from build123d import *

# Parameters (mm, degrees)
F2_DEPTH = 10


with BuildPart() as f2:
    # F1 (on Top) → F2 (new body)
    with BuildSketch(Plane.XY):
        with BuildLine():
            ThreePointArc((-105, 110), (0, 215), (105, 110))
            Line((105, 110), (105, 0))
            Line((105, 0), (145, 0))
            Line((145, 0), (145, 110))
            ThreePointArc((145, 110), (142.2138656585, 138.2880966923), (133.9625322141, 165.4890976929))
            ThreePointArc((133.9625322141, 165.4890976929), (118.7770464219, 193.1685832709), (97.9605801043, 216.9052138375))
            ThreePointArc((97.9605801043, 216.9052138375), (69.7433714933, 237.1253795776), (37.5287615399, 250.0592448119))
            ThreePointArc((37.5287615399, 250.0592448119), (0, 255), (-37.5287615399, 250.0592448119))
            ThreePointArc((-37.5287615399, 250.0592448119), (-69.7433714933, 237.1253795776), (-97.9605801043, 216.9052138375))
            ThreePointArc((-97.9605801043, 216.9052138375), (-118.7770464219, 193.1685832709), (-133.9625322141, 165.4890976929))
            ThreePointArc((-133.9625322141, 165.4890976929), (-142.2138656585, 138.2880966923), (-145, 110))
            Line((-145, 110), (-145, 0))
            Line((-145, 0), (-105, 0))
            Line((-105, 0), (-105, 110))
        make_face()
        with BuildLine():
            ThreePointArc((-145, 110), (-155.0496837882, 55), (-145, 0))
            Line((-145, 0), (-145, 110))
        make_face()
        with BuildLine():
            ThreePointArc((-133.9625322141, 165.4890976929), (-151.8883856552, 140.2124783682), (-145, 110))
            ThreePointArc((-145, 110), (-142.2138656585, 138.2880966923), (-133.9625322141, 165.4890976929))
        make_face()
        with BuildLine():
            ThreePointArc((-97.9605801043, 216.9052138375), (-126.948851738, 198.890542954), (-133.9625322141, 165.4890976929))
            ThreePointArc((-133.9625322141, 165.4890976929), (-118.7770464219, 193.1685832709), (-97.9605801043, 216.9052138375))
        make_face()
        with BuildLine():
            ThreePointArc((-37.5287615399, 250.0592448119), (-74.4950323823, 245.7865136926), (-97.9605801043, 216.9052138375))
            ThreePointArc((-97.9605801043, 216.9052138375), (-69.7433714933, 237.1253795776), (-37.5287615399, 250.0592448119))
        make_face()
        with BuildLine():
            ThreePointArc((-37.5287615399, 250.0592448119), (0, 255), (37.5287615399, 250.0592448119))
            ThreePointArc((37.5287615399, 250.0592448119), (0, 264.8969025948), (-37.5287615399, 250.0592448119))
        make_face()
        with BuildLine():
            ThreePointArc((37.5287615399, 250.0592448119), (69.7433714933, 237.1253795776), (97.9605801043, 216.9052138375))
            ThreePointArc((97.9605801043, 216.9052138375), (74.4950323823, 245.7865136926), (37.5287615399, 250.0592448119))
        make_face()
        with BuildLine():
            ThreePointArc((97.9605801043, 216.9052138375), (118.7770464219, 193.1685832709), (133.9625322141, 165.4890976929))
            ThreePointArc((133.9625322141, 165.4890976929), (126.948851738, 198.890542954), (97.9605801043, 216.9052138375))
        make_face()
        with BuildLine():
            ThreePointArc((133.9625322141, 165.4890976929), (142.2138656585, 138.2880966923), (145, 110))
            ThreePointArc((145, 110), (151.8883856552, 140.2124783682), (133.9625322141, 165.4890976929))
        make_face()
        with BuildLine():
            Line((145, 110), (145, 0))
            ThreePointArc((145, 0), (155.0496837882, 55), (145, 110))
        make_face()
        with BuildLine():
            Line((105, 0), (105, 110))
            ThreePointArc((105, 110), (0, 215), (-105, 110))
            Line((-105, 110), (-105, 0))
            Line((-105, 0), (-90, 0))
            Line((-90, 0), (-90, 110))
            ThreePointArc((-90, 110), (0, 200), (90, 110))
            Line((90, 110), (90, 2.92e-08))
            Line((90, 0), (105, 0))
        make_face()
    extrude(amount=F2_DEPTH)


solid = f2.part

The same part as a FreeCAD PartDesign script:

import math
import FreeCAD as App
import Part
import Sketcher

doc = App.newDocument("Part")
body = doc.addObject("PartDesign::Body", "Body")

# Sketch on XY plane
sketch1 = body.newObject("Sketcher::SketchObject", "Sketch")
sketch1.AttachmentSupport = (doc.getObject("XY_Plane"), [""])
sketch1.MapMode = "FlatFace"
sketch1.addGeometry([
    Part.ArcOfCircle(Part.Circle(App.Vector(-0.477406, 55, 0), App.Vector(0, 0, 1), 155.52709), math.radians(-20.70988), math.radians(20.70988)),  # 0
    Part.ArcOfCircle(Part.Circle(App.Vector(114.663927, 132.808073, 0), App.Vector(0, 0, 1), 37.953728), math.radians(-36.937551), math.radians(59.437551)),  # 1
    Part.ArcOfCircle(Part.Circle(App.Vector(91.379366, 173.984521, 0), App.Vector(0, 0, 1), 43.422325), math.radians(-11.282489), math.radians(81.282489)),  # 2
    Part.ArcOfCircle(Part.Circle(App.Vector(50.765576, 202.533426, 0), App.Vector(0, 0, 1), 49.334742), math.radians(16.936503), math.radians(105.563497)),  # 3
    Part.ArcOfCircle(Part.Circle(App.Vector(0, 210.017485, 0), App.Vector(0, 0, 1), 54.879417), math.radians(46.855522), math.radians(133.144478)),  # 4
    Part.ArcOfCircle(Part.Circle(App.Vector(-50.765576, 202.533426, 0), App.Vector(0, 0, 1), 49.334742), math.radians(74.436503), math.radians(163.063497)),  # 5
    Part.ArcOfCircle(Part.Circle(App.Vector(-91.379366, 173.984521, 0), App.Vector(0, 0, 1), 43.422325), math.radians(98.717511), math.radians(191.282489)),  # 6
    Part.ArcOfCircle(Part.Circle(App.Vector(-114.663927, 132.808073, 0), App.Vector(0, 0, 1), 37.953728), math.radians(120.562449), math.radians(216.937551)),  # 7
    Part.ArcOfCircle(Part.Circle(App.Vector(0.477406, 55, 0), App.Vector(0, 0, 1), 155.52709), math.radians(159.29012), math.radians(200.70988)),  # 8
    Part.LineSegment(App.Vector(-145, 0, 0), App.Vector(-90, 0, 0)),  # 9
    Part.LineSegment(App.Vector(-90, 0, 0), App.Vector(-90, 110, 0)),  # 10
    Part.ArcOfCircle(Part.Circle(App.Vector(0, 110, 0), App.Vector(0, 0, 1), 90), math.radians(0), math.radians(180)),  # 11
    Part.LineSegment(App.Vector(90, 110, 0), App.Vector(90, 0, 0)),  # 12
    Part.LineSegment(App.Vector(90, 0, 0), App.Vector(145, 0, 0)),  # 13
], False)
sketch1.addConstraint([
    Sketcher.Constraint("Coincident", 0, 2, 1, 1),
    Sketcher.Constraint("Coincident", 1, 2, 2, 1),
    Sketcher.Constraint("Coincident", 2, 2, 3, 1),
    Sketcher.Constraint("Coincident", 3, 2, 4, 1),
    Sketcher.Constraint("Coincident", 4, 2, 5, 1),
    Sketcher.Constraint("Coincident", 5, 2, 6, 1),
    Sketcher.Constraint("Coincident", 6, 2, 7, 1),
    Sketcher.Constraint("Coincident", 7, 2, 8, 1),
    Sketcher.Constraint("Coincident", 8, 2, 9, 1),
    Sketcher.Constraint("Coincident", 9, 2, 10, 1),
    Sketcher.Constraint("Tangent", 10, 2, 11, 2),
    Sketcher.Constraint("Tangent", 11, 1, 12, 1),
    Sketcher.Constraint("Coincident", 12, 2, 13, 1),
    Sketcher.Constraint("Coincident", 13, 2, 0, 1),
    Sketcher.Constraint("Horizontal", 9),
    Sketcher.Constraint("Vertical", 10),
    Sketcher.Constraint("Vertical", 12),
    Sketcher.Constraint("Horizontal", 13),
    Sketcher.Constraint("Equal", 3, 5),
    Sketcher.Constraint("Equal", 2, 6),
    Sketcher.Constraint("Equal", 1, 7),
    Sketcher.Constraint("Equal", 0, 8),
    Sketcher.Constraint("Symmetric", 9, 2, 12, 2, -1, 1),
    Sketcher.Constraint("Symmetric", 3, 3, 5, 3, -2),
    Sketcher.Constraint("Symmetric", 2, 3, 6, 3, -2),
    Sketcher.Constraint("Symmetric", 1, 3, 7, 3, -2),
    Sketcher.Constraint("Symmetric", 0, 3, 8, 3, -2),
    Sketcher.Constraint("PointOnObject", 4, 3, -2),
    Sketcher.Constraint("PointOnObject", 8, 2, -1),
    Sketcher.Constraint("Horizontal", 11, 3, 0, 2),
    Sketcher.Constraint("Vertical", 7, 2, 8, 2),
    Sketcher.Constraint("Radius", 11, 90.0),
    Sketcher.Constraint("DistanceX", 9, 1, 9, 2, 55.0),
    Sketcher.Constraint("DistanceY", 10, 1, 10, 2, 110.0),
    Sketcher.Constraint("Radius", 0, 155.52709),
    Sketcher.Constraint("Radius", 1, 37.953728),
    Sketcher.Constraint("Radius", 3, 49.334742),
    Sketcher.Constraint("Radius", 2, 43.422325),
    Sketcher.Constraint("Radius", 4, 54.879417),
    Sketcher.Constraint("DistanceY", -1, 1, 2, 3, 173.984521),
    Sketcher.Constraint("DistanceX", -1, 1, 2, 2, 97.96058),
    Sketcher.Constraint("DistanceX", -1, 1, 3, 2, 37.528762),
    Sketcher.Constraint("DistanceX", 2, 3, 1, 3, 23.284562),
    Sketcher.Constraint("DistanceX", 0, 3, 2, 3, 91.856772),
    Sketcher.Constraint("DistanceX", 3, 3, 2, 3, 40.61379),
])
pad1 = body.newObject("PartDesign::Pad", "Pad")
pad1.Profile = sketch1
pad1.Length = 10

doc.recompute()
